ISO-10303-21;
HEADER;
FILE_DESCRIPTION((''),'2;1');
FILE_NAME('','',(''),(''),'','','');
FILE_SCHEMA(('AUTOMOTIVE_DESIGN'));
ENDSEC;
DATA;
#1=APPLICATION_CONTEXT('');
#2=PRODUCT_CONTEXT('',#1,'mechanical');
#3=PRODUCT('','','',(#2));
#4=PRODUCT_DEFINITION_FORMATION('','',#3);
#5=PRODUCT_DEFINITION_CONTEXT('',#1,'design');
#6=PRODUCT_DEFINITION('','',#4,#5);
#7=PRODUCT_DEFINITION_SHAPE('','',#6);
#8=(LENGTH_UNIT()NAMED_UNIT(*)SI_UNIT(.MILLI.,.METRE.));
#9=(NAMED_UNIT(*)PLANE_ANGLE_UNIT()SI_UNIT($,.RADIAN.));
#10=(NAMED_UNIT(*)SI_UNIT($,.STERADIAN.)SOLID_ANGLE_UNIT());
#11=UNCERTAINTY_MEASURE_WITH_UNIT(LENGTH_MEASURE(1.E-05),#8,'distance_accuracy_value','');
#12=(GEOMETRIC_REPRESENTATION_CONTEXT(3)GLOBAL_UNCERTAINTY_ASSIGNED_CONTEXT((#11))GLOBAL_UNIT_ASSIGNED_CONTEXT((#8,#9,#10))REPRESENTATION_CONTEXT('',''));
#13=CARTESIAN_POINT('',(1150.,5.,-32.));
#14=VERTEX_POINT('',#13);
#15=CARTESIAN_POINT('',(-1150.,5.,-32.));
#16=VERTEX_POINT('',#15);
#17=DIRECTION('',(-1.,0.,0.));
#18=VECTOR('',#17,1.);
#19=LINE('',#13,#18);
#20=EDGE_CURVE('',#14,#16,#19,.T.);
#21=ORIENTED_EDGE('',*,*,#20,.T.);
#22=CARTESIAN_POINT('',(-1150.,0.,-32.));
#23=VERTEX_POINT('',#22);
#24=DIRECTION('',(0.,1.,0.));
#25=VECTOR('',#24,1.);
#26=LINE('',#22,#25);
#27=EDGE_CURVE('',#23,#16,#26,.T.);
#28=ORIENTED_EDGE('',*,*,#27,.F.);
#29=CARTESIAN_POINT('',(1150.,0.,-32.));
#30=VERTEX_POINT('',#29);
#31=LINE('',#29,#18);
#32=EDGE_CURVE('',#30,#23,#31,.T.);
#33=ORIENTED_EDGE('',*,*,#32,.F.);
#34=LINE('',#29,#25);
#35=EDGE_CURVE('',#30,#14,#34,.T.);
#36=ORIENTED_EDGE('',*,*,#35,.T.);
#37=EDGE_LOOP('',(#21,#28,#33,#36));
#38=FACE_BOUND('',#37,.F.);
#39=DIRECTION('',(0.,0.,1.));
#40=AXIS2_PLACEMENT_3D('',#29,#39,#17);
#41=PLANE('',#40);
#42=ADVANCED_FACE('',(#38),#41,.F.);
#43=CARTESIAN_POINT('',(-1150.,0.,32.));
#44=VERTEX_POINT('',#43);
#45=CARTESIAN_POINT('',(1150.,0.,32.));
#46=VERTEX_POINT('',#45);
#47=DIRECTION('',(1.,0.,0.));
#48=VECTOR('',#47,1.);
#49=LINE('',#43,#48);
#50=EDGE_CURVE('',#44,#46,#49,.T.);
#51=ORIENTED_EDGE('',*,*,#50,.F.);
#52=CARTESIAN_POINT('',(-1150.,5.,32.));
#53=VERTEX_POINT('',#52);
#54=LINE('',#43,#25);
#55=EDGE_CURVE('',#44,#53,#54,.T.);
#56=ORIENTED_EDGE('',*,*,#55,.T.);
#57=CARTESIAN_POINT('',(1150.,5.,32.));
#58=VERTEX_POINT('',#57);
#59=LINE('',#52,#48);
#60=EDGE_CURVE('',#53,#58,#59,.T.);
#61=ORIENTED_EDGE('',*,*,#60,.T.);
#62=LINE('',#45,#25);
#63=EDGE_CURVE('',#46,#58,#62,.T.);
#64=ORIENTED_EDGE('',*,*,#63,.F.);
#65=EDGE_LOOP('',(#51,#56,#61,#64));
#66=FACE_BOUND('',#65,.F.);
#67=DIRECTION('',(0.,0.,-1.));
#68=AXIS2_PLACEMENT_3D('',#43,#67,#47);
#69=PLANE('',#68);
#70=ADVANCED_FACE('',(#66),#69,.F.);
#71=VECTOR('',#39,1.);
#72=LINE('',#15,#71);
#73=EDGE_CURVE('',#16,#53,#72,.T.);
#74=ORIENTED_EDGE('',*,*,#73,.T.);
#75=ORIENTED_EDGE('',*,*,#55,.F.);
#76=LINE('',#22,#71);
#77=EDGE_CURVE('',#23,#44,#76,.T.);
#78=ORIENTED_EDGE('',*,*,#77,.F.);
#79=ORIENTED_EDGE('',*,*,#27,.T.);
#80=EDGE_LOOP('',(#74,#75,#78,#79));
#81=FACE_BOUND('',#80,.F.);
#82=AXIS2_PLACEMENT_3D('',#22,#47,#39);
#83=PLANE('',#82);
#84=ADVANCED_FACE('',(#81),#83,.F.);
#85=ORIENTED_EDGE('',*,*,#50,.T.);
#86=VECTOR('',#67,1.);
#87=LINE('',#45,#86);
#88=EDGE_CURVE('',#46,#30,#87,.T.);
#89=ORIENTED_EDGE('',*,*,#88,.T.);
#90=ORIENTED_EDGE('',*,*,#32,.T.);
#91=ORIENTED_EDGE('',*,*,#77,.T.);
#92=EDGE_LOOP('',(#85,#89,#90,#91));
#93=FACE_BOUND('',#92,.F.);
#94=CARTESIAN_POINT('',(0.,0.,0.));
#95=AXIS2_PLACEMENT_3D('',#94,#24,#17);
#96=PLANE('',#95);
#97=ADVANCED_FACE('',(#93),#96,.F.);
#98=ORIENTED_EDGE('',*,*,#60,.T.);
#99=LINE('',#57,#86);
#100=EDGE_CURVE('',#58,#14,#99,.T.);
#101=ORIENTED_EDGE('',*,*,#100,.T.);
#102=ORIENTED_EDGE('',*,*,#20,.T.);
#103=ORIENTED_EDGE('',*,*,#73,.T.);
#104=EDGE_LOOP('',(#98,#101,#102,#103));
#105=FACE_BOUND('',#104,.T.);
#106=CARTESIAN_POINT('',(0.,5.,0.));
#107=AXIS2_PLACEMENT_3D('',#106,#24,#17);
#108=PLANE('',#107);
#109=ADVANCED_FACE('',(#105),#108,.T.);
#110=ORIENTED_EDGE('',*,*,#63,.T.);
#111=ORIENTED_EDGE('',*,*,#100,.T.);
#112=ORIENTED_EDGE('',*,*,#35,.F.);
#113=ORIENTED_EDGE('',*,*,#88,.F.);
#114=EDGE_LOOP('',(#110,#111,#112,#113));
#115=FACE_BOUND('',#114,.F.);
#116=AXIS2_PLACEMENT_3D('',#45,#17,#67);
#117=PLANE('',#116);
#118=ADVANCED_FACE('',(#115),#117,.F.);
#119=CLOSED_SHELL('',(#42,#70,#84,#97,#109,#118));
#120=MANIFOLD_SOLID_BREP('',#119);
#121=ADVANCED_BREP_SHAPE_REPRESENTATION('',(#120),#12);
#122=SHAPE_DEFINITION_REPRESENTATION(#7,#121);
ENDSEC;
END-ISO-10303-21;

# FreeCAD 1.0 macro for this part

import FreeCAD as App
import Part
import Sketcher

V = App.Vector


def add_polygon(sketch, points):
    """Adds a closed chain of lines whose ends are joined by coincident constraints."""
    first, n = sketch.GeometryCount, len(points)
    for a, b in zip(points, points[1:] + points[:1]):
        sketch.addGeometry(Part.LineSegment(App.Vector(*a, 0), App.Vector(*b, 0)), False)
    for i in range(n):
        sketch.addConstraint(Sketcher.Constraint("Coincident", first + i, 2, first + (i + 1) % n, 1))

doc = App.newDocument("Part")
body = doc.addObject("PartDesign::Body", "Body")

sketch1 = body.newObject("Sketcher::SketchObject", "Sketch")
sketch1.AttachmentSupport = (doc.getObject("XZ_Plane"), [""])
sketch1.MapMode = "FlatFace"
add_polygon(sketch1, [(-1150, -32), (-1150, 32), (1150, 32), (1150, -32)])
sketch1.addConstraint([
    Sketcher.Constraint("Vertical", 0),
    Sketcher.Constraint("Horizontal", 1),
    Sketcher.Constraint("Vertical", 2),
    Sketcher.Constraint("Horizontal", 3),
    Sketcher.Constraint("Symmetric", 0, 2, 2, 2, -1, 1),
    Sketcher.Constraint("DistanceX", 1, 1, 1, 2, 2300.0),
    Sketcher.Constraint("DistanceY", 0, 1, 0, 2, 64.0),
])
pad1 = body.newObject("PartDesign::Pad", "Pad")
pad1.Profile = sketch1
pad1.Length = 5
pad1.Reversed = True

doc.recompute()
